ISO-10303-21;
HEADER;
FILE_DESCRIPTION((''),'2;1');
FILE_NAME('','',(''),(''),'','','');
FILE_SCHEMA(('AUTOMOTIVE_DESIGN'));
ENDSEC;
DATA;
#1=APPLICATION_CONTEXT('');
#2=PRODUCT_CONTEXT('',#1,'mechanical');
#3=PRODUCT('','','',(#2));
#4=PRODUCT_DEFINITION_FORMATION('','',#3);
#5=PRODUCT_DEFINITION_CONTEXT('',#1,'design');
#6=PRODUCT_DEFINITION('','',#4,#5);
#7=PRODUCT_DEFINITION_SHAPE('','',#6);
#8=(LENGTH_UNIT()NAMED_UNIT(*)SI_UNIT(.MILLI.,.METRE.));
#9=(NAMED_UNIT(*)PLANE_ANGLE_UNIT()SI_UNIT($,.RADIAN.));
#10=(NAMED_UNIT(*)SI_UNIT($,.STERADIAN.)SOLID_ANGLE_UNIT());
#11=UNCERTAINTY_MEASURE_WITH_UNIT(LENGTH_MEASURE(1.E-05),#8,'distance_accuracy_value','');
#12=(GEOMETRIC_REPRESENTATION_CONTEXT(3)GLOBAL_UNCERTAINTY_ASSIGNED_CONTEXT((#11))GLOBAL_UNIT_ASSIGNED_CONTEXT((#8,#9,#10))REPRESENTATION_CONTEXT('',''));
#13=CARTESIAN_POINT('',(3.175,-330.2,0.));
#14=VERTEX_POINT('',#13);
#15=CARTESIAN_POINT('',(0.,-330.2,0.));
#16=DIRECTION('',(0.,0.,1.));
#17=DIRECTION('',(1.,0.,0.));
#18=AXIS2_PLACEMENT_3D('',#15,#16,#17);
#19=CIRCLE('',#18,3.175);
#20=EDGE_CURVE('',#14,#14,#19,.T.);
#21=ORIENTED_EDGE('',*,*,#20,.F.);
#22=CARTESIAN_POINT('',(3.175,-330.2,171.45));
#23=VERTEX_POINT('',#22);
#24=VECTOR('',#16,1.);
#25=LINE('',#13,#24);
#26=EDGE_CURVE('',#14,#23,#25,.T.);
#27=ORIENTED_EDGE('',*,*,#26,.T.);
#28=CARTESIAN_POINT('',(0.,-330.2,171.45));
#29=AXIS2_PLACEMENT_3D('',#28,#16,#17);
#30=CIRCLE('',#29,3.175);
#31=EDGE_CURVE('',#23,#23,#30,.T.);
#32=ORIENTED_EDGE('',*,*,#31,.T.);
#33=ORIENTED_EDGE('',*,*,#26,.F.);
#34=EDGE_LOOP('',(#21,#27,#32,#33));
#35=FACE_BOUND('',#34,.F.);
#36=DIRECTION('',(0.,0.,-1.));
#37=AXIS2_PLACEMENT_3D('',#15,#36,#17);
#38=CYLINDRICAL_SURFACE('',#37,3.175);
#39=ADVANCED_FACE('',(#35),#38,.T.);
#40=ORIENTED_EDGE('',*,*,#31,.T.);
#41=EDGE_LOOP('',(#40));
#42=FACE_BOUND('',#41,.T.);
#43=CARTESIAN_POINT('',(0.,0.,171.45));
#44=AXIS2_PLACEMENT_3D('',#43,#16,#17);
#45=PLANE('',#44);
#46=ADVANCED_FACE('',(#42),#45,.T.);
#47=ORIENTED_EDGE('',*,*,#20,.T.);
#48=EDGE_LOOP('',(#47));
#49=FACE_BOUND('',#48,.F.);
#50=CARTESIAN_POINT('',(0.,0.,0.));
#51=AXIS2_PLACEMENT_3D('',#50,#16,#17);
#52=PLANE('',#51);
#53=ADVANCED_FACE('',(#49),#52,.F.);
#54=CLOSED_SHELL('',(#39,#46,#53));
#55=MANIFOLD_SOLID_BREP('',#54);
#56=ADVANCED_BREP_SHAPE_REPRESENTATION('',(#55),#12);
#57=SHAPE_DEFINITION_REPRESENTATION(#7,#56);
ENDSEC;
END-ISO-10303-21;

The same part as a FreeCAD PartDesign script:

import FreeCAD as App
import Part
import Sketcher
from FreeCAD import Vector
Q = App.Units.Quantity

doc = App.newDocument("Part")
body = doc.addObject("PartDesign::Body", "Body")

sketch1 = body.newObject("Sketcher::SketchObject", "Sketch")
sketch1.AttachmentSupport = (doc.getObject("XY_Plane"), [""])
sketch1.MapMode = "FlatFace"
sketch1.addGeometry(Part.Circle(Vector(0, -330.2, 0), Vector(0, 0, 1), 3.2), False)
sketch1.addConstraint([
    Sketcher.Constraint("PointOnObject", 0, 3, -2),
    Sketcher.Constraint("Diameter", 0, Q("0.25 in")),
    Sketcher.Constraint("DistanceY", 0, 3, -1, 1, Q("13 in")),
])
pad1 = body.newObject("PartDesign::Pad", "Pad")
pad1.Profile = sketch1
pad1.Length = Q("6.75 in")

doc.recompute()
